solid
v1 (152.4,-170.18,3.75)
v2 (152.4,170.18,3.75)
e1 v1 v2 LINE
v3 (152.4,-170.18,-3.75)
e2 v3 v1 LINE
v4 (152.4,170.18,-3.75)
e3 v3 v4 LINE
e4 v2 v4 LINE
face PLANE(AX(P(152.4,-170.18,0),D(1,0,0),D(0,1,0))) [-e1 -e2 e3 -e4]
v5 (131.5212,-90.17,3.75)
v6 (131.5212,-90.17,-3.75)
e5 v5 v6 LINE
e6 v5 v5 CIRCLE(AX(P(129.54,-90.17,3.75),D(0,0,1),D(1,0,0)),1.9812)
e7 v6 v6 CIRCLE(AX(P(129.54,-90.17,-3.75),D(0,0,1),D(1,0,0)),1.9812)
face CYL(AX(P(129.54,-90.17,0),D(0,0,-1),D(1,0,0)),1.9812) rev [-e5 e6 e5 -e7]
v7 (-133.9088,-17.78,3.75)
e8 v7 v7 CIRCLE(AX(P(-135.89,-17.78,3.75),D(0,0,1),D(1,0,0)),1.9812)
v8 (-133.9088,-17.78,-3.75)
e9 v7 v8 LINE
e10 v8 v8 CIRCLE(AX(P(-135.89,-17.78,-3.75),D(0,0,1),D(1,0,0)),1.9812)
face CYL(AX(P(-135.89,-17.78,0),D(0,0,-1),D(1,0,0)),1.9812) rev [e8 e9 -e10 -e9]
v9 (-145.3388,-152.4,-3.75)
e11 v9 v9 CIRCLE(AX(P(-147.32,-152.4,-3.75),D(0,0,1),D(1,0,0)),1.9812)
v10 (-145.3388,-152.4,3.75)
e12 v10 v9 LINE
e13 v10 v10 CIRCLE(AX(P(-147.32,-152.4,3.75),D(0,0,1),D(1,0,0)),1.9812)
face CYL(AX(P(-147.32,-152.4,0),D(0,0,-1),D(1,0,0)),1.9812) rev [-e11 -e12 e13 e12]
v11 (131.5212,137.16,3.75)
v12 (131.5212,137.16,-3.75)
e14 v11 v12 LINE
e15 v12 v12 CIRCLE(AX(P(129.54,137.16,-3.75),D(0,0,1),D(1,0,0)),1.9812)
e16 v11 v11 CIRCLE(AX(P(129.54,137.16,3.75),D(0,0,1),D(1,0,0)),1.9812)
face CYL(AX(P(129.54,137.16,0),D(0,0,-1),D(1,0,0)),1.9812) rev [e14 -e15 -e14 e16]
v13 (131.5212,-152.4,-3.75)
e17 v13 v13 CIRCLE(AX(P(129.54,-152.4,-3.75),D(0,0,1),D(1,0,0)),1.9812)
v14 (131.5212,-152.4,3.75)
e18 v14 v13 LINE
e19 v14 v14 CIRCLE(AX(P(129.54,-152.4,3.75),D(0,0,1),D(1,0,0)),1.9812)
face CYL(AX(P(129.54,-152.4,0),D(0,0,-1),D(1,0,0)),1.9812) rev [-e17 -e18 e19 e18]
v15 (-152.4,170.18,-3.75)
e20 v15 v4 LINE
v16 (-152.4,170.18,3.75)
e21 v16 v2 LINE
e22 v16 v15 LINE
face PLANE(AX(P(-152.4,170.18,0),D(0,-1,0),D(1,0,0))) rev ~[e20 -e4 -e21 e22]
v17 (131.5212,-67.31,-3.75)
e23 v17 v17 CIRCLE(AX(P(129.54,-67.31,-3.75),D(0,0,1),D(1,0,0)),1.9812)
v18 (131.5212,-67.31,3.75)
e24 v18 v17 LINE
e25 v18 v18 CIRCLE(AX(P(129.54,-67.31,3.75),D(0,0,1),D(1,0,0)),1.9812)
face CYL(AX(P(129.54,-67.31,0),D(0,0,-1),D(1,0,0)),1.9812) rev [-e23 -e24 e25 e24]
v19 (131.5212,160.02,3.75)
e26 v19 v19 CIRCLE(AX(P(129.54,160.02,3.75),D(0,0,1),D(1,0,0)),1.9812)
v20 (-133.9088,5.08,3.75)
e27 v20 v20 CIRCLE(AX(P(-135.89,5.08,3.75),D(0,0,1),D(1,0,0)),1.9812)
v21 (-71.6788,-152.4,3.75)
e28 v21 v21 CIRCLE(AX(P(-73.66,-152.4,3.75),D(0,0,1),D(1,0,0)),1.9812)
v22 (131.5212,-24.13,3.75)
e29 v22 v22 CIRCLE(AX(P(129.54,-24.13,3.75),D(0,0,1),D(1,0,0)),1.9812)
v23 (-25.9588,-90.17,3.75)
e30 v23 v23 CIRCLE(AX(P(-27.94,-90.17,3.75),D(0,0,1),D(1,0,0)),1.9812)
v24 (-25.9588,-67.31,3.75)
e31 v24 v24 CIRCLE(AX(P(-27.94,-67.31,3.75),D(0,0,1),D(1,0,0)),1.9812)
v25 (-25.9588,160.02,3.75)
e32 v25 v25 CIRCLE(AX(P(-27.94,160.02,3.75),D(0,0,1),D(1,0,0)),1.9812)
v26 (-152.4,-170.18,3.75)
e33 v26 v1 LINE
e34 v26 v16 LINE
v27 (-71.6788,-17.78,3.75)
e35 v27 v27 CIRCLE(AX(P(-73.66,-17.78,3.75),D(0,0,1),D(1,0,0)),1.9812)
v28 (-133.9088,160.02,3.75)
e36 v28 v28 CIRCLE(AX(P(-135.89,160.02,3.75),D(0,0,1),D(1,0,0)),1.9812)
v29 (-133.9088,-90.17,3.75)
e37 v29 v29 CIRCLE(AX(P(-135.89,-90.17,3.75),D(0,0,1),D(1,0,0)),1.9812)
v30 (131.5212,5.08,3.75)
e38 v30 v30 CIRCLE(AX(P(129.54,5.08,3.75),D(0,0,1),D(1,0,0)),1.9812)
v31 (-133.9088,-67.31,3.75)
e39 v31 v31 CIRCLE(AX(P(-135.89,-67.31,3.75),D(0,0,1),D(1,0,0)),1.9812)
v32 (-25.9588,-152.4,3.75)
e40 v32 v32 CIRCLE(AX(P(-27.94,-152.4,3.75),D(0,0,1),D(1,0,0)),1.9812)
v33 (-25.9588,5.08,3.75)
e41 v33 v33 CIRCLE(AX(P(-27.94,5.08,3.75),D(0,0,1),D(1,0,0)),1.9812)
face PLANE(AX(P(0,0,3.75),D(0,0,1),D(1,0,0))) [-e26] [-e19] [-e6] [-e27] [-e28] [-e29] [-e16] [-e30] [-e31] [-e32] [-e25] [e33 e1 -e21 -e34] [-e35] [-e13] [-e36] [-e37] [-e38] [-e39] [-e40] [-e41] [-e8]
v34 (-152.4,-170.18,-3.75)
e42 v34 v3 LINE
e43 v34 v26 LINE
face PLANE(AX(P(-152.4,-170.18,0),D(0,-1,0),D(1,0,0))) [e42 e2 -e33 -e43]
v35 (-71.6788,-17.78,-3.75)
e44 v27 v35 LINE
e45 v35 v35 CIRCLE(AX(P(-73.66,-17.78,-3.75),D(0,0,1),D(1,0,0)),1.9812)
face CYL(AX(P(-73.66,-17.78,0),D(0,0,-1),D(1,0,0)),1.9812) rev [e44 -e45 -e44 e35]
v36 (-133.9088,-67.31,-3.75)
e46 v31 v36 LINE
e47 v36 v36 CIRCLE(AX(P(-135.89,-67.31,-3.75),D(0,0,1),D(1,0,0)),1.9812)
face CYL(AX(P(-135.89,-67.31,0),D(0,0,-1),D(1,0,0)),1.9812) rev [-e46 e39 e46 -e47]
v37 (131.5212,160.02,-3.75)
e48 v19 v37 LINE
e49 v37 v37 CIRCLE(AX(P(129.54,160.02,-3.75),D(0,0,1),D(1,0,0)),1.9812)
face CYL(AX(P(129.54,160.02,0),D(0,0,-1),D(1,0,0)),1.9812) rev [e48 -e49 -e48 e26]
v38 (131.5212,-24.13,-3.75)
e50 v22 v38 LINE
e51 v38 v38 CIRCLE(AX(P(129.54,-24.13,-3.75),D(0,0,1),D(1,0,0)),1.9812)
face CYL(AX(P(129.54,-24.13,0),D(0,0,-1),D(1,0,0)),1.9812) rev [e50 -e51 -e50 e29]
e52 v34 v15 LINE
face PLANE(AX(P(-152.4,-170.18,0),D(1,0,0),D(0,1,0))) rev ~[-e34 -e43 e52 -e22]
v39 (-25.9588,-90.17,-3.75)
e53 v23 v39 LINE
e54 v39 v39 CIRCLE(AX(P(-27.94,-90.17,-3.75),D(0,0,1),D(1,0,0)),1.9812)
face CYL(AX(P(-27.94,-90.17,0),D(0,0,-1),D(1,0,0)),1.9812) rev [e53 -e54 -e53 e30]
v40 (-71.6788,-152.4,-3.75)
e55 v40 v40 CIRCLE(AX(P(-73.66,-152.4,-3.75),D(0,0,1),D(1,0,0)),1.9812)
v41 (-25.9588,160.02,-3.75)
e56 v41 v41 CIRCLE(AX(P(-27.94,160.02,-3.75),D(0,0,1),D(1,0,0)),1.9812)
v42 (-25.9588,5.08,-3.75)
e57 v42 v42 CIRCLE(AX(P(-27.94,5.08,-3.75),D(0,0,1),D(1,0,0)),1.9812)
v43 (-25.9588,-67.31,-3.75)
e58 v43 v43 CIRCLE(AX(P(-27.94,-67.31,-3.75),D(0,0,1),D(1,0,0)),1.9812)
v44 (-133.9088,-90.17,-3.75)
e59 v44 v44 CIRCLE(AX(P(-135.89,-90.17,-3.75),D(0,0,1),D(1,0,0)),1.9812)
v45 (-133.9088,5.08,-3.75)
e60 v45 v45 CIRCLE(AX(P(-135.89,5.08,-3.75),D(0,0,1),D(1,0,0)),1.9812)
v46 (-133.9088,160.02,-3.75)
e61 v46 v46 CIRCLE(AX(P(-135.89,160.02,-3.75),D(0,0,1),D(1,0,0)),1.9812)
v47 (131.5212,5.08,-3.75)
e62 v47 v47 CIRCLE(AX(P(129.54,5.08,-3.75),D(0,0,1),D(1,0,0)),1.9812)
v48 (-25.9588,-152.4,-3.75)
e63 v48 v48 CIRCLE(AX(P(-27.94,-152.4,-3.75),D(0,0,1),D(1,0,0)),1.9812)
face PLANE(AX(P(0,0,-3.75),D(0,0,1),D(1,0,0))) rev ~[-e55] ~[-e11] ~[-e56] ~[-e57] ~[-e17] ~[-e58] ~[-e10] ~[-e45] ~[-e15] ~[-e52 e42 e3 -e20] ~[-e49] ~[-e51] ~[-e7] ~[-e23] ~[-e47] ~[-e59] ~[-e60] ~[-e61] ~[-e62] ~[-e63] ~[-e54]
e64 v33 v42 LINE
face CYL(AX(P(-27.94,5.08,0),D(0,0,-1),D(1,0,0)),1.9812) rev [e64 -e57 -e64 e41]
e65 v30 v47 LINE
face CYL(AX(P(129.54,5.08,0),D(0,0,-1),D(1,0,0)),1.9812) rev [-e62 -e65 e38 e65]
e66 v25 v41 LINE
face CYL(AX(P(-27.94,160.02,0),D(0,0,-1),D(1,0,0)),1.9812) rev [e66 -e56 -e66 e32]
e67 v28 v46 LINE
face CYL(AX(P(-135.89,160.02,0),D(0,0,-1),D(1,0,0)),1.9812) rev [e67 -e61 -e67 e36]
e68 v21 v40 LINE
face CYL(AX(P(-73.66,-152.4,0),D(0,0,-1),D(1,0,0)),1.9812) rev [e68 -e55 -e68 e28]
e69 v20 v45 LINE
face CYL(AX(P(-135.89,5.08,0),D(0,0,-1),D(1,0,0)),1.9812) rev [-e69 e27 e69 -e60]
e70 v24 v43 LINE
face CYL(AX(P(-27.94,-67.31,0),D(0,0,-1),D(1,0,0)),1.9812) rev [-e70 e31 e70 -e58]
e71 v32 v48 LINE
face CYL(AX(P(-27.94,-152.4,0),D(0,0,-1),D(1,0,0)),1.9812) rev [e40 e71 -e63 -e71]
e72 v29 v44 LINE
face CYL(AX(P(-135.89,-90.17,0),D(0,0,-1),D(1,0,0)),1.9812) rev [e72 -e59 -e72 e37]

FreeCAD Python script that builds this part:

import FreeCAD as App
import Part
import Sketcher

V = App.Vector
Q = App.Units.Quantity

doc = App.newDocument("Part")
body = doc.addObject("PartDesign::Body", "Body")

# Sketch on XY plane
sketch1 = body.newObject("Sketcher::SketchObject", "Sketch")
sketch1.AttachmentSupport = (doc.getObject("XY_Plane"), [""])
sketch1.MapMode = "FlatFace"
sketch1.addGeometry([
    Part.LineSegment(V(-152.4, 170.2, 0), V(-152.4, -170.2, 0)),  # 0
    Part.LineSegment(V(-152.4, -170.2, 0), V(152.4, -170.2, 0)),  # 1
    Part.LineSegment(V(152.4, -170.2, 0), V(152.4, 170.2, 0)),  # 2
    Part.LineSegment(V(152.4, 170.2, 0), V(-152.4, 170.2, 0)),  # 3
    Part.Circle(V(-147.3, -152.4, 0), V(0, 0, 1), 2),  # 4
    Part.Circle(V(-135.9, -90.2, 0), V(0, 0, 1), 2),  # 5
    Part.Circle(V(-73.7, -152.4, 0), V(0, 0, 1), 2),  # 6
    Part.Circle(V(-27.9, -152.4, 0), V(0, 0, 1), 2),  # 7
    Part.Circle(V(-27.9, -90.2, 0), V(0, 0, 1), 2),  # 8
    Part.Circle(V(-135.9, -67.3, 0), V(0, 0, 1), 2),  # 9
    Part.Circle(V(-135.9, -17.8, 0), V(0, 0, 1), 2),  # 10
    Part.Circle(V(-27.9, -67.3, 0), V(0, 0, 1), 2),  # 11
    Part.Circle(V(-73.7, -17.8, 0), V(0, 0, 1), 2),  # 12
    Part.Circle(V(129.5, -152.4, 0), V(0, 0, 1), 2),  # 13
    Part.Circle(V(129.5, -90.2, 0), V(0, 0, 1), 2),  # 14
    Part.Circle(V(129.5, -67.3, 0), V(0, 0, 1), 2),  # 15
    Part.Circle(V(129.5, -24.1, 0), V(0, 0, 1), 2),  # 16
    Part.Circle(V(-135.9, 5.1, 0), V(0, 0, 1), 2),  # 17
    Part.Circle(V(-27.9, 5.1, 0), V(0, 0, 1), 2),  # 18
    Part.Circle(V(-135.9, 160, 0), V(0, 0, 1), 2),  # 19
    Part.Circle(V(-27.9, 160, 0), V(0, 0, 1), 2),  # 20
    Part.Circle(V(129.5, 5.1, 0), V(0, 0, 1), 2),  # 21
    Part.Circle(V(129.5, 137.2, 0), V(0, 0, 1), 2),  # 22
    Part.Circle(V(129.5, 160, 0), V(0, 0, 1), 2),  # 23
], False)
sketch1.addConstraint([
    Sketcher.Constraint("Coincident", 0, 2, 1, 1),
    Sketcher.Constraint("Coincident", 1, 2, 2, 1),
    Sketcher.Constraint("Coincident", 2, 2, 3, 1),
    Sketcher.Constraint("Coincident", 3, 2, 0, 1),
    Sketcher.Constraint("Vertical", 0),
    Sketcher.Constraint("Horizontal", 1),
    Sketcher.Constraint("Vertical", 2),
    Sketcher.Constraint("Horizontal", 3),
    Sketcher.Constraint("Equal", 4, 5),
    Sketcher.Constraint("Equal", 5, 6),
    Sketcher.Constraint("Equal", 6, 7),
    Sketcher.Constraint("Equal", 7, 8),
    Sketcher.Constraint("Equal", 8, 9),
    Sketcher.Constraint("Equal", 9, 10),
    Sketcher.Constraint("Equal", 10, 11),
    Sketcher.Constraint("Equal", 11, 12),
    Sketcher.Constraint("Equal", 12, 13),
    Sketcher.Constraint("Equal", 13, 14),
    Sketcher.Constraint("Equal", 14, 15),
    Sketcher.Constraint("Equal", 15, 16),
    Sketcher.Constraint("Equal", 16, 17),
    Sketcher.Constraint("Equal", 17, 18),
    Sketcher.Constraint("Equal", 18, 19),
    Sketcher.Constraint("Equal", 19, 20),
    Sketcher.Constraint("Equal", 20, 21),
    Sketcher.Constraint("Equal", 21, 22),
    Sketcher.Constraint("Equal", 22, 23),
    Sketcher.Constraint("Symmetric", 0, 2, 2, 2, -1, 1),
    Sketcher.Constraint("Horizontal", 4, 3, 6, 3),
    Sketcher.Constraint("Horizontal", 6, 3, 7, 3),
    Sketcher.Constraint("Horizontal", 5, 3, 8, 3),
    Sketcher.Constraint("Horizontal", 9, 3, 11, 3),
    Sketcher.Constraint("Horizontal", 10, 3, 12, 3),
    Sketcher.Constraint("Horizontal", 7, 3, 13, 3),
    Sketcher.Constraint("Horizontal", 8, 3, 14, 3),
    Sketcher.Constraint("Horizontal", 11, 3, 15, 3),
    Sketcher.Constraint("Horizontal", 17, 3, 18, 3),
    Sketcher.Constraint("Horizontal", 19, 3, 20, 3),
    Sketcher.Constraint("Horizontal", 18, 3, 21, 3),
    Sketcher.Constraint("Horizontal", 20, 3, 23, 3),
    Sketcher.Constraint("Vertical", 7, 3, 8, 3),
    Sketcher.Constraint("Vertical", 5, 3, 9, 3),
    Sketcher.Constraint("Vertical", 9, 3, 10, 3),
    Sketcher.Constraint("Vertical", 8, 3, 11, 3),
    Sketcher.Constraint("Vertical", 6, 3, 12, 3),
    Sketcher.Constraint("Vertical", 13, 3, 14, 3),
    Sketcher.Constraint("Vertical", 14, 3, 15, 3),
    Sketcher.Constraint("Vertical", 15, 3, 16, 3),
    Sketcher.Constraint("Vertical", 10, 3, 17, 3),
    Sketcher.Constraint("Vertical", 11, 3, 18, 3),
    Sketcher.Constraint("Vertical", 17, 3, 19, 3),
    Sketcher.Constraint("Vertical", 18, 3, 20, 3),
    Sketcher.Constraint("Vertical", 16, 3, 21, 3),
    Sketcher.Constraint("Vertical", 21, 3, 22, 3),
    Sketcher.Constraint("Vertical", 22, 3, 23, 3),
    Sketcher.Constraint("DistanceX", 1, 1, 1, 2, Q("12 in")),
    Sketcher.Constraint("Diameter", 4, Q("0.156 in")),
    Sketcher.Constraint("DistanceY", 0, 2, 0, 1, Q("13.4 in")),
    Sketcher.Constraint("DistanceY", 4, 3, -1, 1, Q("6 in")),
    Sketcher.Constraint("DistanceX", 6, 3, 13, 3, Q("8 in")),
    Sketcher.Constraint("DistanceY", 10, 3, 19, 3, Q("7 in")),
    Sketcher.Constraint("DistanceX", 4, 3, -1, 1, Q("5.8 in")),
    Sketcher.Constraint("DistanceX", 6, 3, -1, 1, Q("2.9 in")),
    Sketcher.Constraint("DistanceX", 7, 3, -1, 1, Q("1.1 in")),
    Sketcher.Constraint("DistanceY", 10, 3, -1, 1, Q("0.7 in")),
    Sketcher.Constraint("DistanceY", -1, 1, 17, 3, Q("0.2 in")),
    Sketcher.Constraint("DistanceY", -1, 1, 22, 3, Q("5.4 in")),
    Sketcher.Constraint("DistanceY", 5, 3, 9, 3, Q("0.9 in")),
    Sketcher.Constraint("DistanceY", 15, 3, 16, 3, Q("1.7 in")),
    Sketcher.Constraint("DistanceX", 5, 3, -1, 1, Q("5.35 in")),
    Sketcher.Constraint("DistanceY", 5, 3, -1, 1, Q("3.55 in")),
])
pad1 = body.newObject("PartDesign::Pad", "Pad")
pad1.Profile = sketch1
pad1.Length = 7.5
pad1.Midplane = True

doc.recompute()
